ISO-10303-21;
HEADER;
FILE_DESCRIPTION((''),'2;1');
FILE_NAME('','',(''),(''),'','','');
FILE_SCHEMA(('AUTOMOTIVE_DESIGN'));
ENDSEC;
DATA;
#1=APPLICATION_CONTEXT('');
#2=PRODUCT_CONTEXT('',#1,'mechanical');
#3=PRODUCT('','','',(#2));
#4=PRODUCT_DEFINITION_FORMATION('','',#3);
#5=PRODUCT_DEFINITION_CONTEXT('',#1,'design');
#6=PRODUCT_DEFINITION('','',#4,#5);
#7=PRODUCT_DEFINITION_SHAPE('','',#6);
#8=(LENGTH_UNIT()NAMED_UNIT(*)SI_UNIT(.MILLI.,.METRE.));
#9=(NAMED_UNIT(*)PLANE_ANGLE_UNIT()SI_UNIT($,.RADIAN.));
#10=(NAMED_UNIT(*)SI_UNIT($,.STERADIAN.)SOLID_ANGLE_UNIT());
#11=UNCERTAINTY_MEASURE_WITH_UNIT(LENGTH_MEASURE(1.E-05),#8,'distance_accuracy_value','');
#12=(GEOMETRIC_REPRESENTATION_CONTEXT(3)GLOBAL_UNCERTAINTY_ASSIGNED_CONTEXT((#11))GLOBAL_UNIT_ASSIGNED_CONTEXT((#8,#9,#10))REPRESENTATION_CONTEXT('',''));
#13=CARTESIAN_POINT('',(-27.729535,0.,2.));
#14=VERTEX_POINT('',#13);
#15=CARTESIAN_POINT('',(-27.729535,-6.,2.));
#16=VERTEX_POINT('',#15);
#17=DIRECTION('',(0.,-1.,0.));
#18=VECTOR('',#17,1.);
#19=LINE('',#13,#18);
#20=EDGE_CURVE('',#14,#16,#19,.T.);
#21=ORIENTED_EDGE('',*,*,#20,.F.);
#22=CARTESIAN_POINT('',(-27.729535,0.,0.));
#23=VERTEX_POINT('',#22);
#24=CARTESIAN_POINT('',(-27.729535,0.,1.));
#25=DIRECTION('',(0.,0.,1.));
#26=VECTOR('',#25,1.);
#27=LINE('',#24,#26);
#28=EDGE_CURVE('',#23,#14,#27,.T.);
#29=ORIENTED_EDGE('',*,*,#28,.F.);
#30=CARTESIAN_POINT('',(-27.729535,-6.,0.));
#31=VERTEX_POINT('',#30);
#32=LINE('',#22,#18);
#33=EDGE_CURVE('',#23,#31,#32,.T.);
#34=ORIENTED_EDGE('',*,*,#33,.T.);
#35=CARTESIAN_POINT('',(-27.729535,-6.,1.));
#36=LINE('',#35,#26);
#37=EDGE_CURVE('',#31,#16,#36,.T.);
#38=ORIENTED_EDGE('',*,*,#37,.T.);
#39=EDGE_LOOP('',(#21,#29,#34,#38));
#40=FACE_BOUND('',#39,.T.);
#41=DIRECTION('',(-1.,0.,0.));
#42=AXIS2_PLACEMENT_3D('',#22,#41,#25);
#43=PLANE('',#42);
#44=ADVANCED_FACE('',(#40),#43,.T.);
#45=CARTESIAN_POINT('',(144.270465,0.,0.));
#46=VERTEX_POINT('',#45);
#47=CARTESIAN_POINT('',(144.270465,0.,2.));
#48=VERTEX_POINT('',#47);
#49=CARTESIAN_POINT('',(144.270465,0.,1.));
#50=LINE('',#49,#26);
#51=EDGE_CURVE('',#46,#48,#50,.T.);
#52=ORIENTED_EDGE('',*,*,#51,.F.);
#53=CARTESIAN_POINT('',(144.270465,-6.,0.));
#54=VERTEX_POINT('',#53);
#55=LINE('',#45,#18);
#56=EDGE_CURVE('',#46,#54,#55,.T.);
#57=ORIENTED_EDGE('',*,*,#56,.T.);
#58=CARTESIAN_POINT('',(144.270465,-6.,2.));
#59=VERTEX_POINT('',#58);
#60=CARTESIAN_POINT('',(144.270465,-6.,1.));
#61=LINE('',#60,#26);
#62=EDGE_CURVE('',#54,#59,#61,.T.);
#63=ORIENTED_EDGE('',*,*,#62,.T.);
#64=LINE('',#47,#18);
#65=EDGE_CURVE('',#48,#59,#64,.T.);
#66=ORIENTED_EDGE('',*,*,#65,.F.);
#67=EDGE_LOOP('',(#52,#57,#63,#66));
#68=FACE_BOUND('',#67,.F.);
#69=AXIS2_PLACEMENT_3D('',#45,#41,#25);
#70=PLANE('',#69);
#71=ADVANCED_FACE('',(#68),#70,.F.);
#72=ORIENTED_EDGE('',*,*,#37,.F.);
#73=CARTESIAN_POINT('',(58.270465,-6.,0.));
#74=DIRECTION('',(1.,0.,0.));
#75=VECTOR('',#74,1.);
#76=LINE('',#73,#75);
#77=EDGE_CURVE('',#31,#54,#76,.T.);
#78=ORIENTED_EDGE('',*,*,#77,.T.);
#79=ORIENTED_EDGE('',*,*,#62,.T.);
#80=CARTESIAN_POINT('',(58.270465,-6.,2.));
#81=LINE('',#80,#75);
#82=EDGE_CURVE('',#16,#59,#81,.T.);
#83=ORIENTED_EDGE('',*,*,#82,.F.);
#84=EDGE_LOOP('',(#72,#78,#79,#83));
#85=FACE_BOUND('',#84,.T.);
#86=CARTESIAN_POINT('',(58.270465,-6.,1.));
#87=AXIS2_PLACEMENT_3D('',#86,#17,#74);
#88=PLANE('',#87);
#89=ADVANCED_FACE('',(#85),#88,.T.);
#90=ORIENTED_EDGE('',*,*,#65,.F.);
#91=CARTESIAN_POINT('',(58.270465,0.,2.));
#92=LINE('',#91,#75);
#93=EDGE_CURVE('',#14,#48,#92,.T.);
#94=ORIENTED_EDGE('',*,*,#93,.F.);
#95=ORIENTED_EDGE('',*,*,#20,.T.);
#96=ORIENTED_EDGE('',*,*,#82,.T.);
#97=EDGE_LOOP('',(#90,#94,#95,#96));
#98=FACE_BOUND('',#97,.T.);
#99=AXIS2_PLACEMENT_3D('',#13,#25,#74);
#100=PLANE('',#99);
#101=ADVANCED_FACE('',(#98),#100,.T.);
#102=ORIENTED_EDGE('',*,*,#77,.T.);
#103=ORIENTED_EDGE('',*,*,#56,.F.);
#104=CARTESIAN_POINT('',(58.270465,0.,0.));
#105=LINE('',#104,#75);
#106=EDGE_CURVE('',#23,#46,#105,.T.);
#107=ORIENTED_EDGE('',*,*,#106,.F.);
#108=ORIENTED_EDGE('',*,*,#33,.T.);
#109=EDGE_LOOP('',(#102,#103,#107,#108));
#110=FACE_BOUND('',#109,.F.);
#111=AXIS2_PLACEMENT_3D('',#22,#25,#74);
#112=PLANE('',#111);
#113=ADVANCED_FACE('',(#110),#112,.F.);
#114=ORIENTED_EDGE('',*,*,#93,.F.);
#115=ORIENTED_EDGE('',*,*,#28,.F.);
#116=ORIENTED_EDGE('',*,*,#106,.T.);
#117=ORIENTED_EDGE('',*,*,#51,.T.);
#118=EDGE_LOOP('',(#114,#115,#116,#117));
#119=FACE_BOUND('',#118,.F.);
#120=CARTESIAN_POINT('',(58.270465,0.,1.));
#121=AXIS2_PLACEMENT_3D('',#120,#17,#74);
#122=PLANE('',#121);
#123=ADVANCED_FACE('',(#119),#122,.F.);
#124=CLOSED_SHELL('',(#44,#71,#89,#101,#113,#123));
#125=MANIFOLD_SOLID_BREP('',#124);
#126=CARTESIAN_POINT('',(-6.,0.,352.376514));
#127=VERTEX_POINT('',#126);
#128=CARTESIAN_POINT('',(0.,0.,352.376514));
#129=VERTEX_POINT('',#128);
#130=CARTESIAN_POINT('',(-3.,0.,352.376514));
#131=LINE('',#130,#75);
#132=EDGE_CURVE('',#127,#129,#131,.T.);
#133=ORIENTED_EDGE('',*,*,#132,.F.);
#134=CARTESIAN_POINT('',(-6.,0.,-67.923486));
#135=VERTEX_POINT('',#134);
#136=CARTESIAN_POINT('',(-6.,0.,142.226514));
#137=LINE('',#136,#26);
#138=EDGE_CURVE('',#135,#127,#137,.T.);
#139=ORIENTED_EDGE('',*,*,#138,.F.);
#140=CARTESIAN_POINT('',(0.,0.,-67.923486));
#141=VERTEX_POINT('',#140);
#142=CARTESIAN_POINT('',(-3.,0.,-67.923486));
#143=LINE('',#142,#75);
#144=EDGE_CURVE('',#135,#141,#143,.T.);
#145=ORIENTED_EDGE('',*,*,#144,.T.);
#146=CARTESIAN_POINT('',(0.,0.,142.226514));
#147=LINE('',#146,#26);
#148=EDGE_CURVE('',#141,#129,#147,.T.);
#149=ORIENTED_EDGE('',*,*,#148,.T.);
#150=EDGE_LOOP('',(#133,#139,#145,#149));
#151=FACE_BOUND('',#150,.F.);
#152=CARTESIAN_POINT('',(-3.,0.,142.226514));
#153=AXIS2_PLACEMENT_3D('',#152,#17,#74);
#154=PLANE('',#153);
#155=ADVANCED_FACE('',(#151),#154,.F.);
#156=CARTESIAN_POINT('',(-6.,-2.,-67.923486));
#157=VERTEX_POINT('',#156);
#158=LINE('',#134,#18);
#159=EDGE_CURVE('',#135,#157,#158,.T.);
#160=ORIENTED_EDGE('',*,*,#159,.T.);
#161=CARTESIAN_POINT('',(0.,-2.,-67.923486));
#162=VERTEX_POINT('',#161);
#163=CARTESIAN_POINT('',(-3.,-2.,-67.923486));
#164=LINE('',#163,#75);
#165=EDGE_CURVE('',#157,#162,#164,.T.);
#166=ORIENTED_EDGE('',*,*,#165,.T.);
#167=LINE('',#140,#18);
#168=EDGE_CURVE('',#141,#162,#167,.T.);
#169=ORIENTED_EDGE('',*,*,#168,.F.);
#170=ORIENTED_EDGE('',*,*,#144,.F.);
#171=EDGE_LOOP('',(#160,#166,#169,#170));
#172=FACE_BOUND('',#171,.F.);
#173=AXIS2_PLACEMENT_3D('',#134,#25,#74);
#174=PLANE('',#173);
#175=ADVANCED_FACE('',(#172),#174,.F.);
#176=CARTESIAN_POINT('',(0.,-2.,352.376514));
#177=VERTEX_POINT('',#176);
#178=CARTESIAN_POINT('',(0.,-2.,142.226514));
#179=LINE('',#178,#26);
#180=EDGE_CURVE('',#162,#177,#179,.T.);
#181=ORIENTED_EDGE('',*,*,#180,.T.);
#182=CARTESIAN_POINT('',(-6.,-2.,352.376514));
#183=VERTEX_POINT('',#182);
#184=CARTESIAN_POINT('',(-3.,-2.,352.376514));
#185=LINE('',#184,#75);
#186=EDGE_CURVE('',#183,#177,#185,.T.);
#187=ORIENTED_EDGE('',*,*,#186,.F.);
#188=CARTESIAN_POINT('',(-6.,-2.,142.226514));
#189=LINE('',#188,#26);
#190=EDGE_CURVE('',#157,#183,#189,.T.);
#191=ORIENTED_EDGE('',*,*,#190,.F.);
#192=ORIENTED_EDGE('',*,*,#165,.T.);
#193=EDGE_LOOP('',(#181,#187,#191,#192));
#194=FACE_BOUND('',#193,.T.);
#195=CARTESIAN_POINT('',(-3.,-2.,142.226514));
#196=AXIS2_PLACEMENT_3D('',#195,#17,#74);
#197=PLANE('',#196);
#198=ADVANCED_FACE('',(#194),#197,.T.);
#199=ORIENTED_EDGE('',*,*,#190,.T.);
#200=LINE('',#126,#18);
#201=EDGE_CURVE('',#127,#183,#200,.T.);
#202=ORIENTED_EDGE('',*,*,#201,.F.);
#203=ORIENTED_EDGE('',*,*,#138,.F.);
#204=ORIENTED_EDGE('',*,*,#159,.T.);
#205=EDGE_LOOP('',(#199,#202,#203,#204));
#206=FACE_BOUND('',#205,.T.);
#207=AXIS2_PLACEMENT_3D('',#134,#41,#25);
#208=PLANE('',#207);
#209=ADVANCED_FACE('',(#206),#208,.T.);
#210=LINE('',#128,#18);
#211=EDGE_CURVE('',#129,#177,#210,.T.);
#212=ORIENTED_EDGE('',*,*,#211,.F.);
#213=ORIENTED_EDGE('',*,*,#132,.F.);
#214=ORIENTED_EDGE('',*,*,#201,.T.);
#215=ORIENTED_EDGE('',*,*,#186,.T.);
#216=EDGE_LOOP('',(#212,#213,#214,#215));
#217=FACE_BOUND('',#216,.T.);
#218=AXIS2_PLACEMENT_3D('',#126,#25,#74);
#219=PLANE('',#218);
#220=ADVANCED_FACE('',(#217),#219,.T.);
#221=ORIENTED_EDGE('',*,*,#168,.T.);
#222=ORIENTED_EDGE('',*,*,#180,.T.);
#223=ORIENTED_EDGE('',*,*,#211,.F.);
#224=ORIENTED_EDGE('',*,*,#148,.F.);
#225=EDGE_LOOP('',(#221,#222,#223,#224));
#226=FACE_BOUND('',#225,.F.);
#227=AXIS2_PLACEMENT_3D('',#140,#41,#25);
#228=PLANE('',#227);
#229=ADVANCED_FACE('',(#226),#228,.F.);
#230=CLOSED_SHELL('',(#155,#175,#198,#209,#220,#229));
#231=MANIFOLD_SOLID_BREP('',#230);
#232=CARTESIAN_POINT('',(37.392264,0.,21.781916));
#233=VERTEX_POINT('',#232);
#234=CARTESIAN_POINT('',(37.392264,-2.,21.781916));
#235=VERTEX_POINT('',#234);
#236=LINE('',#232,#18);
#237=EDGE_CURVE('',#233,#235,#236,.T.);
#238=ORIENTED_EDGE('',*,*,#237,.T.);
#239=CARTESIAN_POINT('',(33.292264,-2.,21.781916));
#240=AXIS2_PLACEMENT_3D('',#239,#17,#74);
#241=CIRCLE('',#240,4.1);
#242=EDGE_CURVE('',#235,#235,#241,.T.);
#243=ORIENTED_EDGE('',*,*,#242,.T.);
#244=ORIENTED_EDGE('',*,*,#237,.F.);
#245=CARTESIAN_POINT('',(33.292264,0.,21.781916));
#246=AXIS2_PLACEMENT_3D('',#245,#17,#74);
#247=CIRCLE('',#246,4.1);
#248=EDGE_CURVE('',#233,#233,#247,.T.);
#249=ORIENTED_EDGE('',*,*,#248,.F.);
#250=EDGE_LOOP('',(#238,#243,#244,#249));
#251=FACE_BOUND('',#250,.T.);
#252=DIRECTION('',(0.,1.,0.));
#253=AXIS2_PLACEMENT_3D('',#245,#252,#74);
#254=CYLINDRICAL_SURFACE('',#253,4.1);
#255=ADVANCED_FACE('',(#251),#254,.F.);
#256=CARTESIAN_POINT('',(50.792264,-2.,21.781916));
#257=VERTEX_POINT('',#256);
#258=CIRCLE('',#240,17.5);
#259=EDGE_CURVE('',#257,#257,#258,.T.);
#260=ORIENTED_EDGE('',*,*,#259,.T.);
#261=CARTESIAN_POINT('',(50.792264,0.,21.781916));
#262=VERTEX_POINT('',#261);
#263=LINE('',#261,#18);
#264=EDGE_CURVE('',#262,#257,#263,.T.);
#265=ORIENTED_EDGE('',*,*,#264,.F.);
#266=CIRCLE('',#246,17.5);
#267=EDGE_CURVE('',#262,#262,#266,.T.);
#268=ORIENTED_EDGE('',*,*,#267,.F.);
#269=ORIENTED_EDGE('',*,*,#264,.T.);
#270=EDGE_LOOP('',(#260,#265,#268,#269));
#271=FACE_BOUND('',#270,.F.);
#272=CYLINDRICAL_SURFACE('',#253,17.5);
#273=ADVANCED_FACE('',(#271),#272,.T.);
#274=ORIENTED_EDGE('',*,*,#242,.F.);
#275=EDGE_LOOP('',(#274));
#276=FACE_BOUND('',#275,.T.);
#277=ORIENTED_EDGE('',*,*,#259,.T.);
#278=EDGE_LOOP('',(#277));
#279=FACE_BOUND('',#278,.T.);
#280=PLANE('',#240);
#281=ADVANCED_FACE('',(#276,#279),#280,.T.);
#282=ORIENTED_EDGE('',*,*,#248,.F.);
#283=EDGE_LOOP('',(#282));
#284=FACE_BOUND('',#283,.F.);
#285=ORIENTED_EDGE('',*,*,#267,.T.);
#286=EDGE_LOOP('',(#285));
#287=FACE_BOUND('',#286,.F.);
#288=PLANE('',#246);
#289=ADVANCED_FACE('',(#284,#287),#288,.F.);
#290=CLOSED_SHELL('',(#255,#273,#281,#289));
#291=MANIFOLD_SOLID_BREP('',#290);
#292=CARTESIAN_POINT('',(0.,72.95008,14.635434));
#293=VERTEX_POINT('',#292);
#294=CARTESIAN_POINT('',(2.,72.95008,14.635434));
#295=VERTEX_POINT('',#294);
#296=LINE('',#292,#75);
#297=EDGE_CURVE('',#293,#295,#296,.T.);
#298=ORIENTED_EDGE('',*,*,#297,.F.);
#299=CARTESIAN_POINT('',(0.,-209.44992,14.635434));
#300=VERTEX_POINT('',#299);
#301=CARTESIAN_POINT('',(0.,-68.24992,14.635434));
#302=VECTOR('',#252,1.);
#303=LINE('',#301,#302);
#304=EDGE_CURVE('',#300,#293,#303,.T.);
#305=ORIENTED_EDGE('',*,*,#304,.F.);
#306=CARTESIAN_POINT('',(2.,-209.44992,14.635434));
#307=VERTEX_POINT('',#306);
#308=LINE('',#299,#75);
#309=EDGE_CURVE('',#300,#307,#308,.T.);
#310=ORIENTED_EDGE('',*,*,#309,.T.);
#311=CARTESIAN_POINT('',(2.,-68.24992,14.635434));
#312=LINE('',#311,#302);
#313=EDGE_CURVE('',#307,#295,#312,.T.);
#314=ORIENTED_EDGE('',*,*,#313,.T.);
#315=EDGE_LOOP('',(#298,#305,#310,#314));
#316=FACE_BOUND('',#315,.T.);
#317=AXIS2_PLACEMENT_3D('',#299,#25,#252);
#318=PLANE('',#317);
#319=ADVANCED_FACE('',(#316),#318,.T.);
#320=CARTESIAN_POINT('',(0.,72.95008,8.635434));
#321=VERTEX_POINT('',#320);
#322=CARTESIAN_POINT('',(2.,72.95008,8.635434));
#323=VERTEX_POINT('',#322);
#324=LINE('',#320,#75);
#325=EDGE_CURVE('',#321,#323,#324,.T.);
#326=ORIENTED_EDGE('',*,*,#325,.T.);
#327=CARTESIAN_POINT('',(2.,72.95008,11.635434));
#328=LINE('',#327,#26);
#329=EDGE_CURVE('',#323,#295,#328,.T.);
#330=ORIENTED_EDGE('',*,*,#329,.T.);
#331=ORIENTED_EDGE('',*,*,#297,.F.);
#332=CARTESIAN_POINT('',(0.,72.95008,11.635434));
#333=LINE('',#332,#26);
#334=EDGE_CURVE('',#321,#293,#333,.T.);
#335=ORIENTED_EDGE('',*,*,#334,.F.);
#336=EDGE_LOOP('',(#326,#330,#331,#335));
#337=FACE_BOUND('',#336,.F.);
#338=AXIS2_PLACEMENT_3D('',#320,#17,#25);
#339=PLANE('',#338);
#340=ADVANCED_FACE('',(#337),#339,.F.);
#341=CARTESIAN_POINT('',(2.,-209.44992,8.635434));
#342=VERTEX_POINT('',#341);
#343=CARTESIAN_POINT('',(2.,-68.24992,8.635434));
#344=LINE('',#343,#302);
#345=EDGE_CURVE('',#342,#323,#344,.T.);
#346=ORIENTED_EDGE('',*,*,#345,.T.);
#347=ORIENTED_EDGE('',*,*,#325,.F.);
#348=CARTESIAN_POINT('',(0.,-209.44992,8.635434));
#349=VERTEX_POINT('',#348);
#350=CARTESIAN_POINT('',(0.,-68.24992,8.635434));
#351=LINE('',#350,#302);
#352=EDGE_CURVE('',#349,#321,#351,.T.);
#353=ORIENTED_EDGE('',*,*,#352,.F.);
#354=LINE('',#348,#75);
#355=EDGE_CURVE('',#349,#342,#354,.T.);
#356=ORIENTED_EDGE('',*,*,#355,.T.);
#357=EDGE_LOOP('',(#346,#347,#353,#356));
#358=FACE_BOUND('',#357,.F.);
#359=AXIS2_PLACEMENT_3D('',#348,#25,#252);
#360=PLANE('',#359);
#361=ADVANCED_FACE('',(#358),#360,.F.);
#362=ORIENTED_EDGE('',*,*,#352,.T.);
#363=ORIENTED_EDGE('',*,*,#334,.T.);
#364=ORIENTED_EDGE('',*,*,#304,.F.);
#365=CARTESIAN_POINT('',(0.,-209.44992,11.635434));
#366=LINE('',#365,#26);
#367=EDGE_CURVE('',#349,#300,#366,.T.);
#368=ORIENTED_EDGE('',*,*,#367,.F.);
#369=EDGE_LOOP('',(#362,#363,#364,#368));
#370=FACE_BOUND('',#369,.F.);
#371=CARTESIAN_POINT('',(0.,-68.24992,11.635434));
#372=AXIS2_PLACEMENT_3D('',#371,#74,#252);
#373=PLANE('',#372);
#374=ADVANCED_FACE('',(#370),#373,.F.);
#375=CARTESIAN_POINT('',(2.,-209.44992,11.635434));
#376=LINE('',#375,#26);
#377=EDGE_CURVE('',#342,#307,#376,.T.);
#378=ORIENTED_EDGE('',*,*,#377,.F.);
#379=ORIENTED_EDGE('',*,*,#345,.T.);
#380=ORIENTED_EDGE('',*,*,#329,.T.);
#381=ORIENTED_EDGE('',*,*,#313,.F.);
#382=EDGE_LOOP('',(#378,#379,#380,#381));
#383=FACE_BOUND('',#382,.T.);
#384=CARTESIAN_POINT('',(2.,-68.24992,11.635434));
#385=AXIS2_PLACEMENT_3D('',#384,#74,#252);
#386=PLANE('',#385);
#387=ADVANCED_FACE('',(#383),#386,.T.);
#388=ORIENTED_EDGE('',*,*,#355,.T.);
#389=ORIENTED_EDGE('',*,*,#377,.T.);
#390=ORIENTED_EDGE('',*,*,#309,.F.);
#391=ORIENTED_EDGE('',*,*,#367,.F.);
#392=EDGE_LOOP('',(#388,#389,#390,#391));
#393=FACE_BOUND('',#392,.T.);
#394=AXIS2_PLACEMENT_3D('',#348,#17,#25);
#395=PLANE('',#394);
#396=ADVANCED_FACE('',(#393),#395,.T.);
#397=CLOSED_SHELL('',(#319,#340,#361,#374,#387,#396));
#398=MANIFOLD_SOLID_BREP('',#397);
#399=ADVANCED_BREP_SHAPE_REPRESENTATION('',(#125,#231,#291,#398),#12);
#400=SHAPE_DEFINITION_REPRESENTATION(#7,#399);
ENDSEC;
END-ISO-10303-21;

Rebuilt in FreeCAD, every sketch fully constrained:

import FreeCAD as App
import Part
import Sketcher

V = App.Vector

doc = App.newDocument("Part")
body = doc.addObject("PartDesign::Body", "Body")

sketch1 = body.newObject("Sketcher::SketchObject", "Sketch")
sketch1.AttachmentSupport = (doc.getObject("XZ_Plane"), [""])
sketch1.MapMode = "FlatFace"
sketch1.addGeometry([
    Part.LineSegment(V(-27.7, 2, 0), V(-27.7, 0, 0)),
    Part.LineSegment(V(-27.7, 0, 0), V(144.3, 0, 0)),
    Part.LineSegment(V(144.3, 0, 0), V(144.3, 2, 0)),
    Part.LineSegment(V(144.3, 2, 0), V(-27.7, 2, 0)),
], False)
sketch1.addConstraint([
    Sketcher.Constraint("Coincident", 0, 2, 1, 1),
    Sketcher.Constraint("Coincident", 1, 2, 2, 1),
    Sketcher.Constraint("Coincident", 2, 2, 3, 1),
    Sketcher.Constraint("Coincident", 3, 2, 0, 1),
    Sketcher.Constraint("Vertical", 0),
    Sketcher.Constraint("Horizontal", 1),
    Sketcher.Constraint("Vertical", 2),
    Sketcher.Constraint("Horizontal", 3),
    Sketcher.Constraint("PointOnObject", 0, 2, -1),
    Sketcher.Constraint("DistanceX", 1, 1, 1, 2, 172.0),
    Sketcher.Constraint("DistanceY", 0, 2, 0, 1, 2.0),
    Sketcher.Constraint("DistanceX", 0, 2, -1, 1, 27.729535),
])
pad1 = body.newObject("PartDesign::Pad", "Pad")
pad1.Profile = sketch1
pad1.Length = 6
body2 = doc.addObject("PartDesign::Body", "Body001")

sketch2 = body2.newObject("Sketcher::SketchObject", "Sketch001")
sketch2.AttachmentSupport = (doc.getObject("YZ_Plane001"), [""])
sketch2.MapMode = "FlatFace"
sketch2.addGeometry([
    Part.LineSegment(V(-209, 15, 0), V(-209, 9, 0)),
    Part.LineSegment(V(-209, 9, 0), V(73, 9, 0)),
    Part.LineSegment(V(73, 9, 0), V(73, 15, 0)),
    Part.LineSegment(V(73, 15, 0), V(-209, 15, 0)),
], False)
sketch2.addConstraint([
    Sketcher.Constraint("Coincident", 0, 2, 1, 1),
    Sketcher.Constraint("Coincident", 1, 2, 2, 1),
    Sketcher.Constraint("Coincident", 2, 2, 3, 1),
    Sketcher.Constraint("Coincident", 3, 2, 0, 1),
    Sketcher.Constraint("Vertical", 0),
    Sketcher.Constraint("Horizontal", 1),
    Sketcher.Constraint("Vertical", 2),
    Sketcher.Constraint("Horizontal", 3),
    Sketcher.Constraint("DistanceY", 0, 2, 0, 1, 6.0),
    Sketcher.Constraint("DistanceX", 1, 1, 1, 2, 282.4),
    Sketcher.Constraint("DistanceX", 0, 2, -1, 1, 209.44992),
    Sketcher.Constraint("DistanceY", -1, 1, 0, 2, 8.635434),
])
pad2 = body2.newObject("PartDesign::Pad", "Pad001")
pad2.Profile = sketch2
pad2.Length = 2
body3 = doc.addObject("PartDesign::Body", "Body002")

sketch3 = body3.newObject("Sketcher::SketchObject", "Sketch002")
sketch3.AttachmentSupport = (doc.getObject("XZ_Plane002"), [""])
sketch3.MapMode = "FlatFace"
sketch3.addGeometry([
    Part.LineSegment(V(-6, 352, 0), V(-6, -68, 0)),
    Part.LineSegment(V(-6, -68, 0), V(0, -68, 0)),
    Part.LineSegment(V(0, -68, 0), V(0, 352, 0)),
    Part.LineSegment(V(0, 352, 0), V(-6, 352, 0)),
], False)
sketch3.addConstraint([
    Sketcher.Constraint("Coincident", 0, 2, 1, 1),
    Sketcher.Constraint("Coincident", 1, 2, 2, 1),
    Sketcher.Constraint("Coincident", 2, 2, 3, 1),
    Sketcher.Constraint("Coincident", 3, 2, 0, 1),
    Sketcher.Constraint("Vertical", 0),
    Sketcher.Constraint("Horizontal", 1),
    Sketcher.Constraint("Vertical", 2),
    Sketcher.Constraint("Horizontal", 3),
    Sketcher.Constraint("PointOnObject", 1, 2, -2),
    Sketcher.Constraint("DistanceX", 1, 1, 1, 2, 6.0),
    Sketcher.Constraint("DistanceY", 0, 2, 0, 1, 420.3),
    Sketcher.Constraint("DistanceY", 0, 2, -1, 1, 67.923486),
])
pad3 = body3.newObject("PartDesign::Pad", "Pad002")
pad3.Profile = sketch3
pad3.Length = 2
body4 = doc.addObject("PartDesign::Body", "Body003")

sketch4 = body4.newObject("Sketcher::SketchObject", "Sketch003")
sketch4.AttachmentSupport = (doc.getObject("XZ_Plane003"), [""])
sketch4.MapMode = "FlatFace"
sketch4.addGeometry([
    Part.Circle(V(33.3, 21.8, 0), V(0, 0, 1), 17.5),
    Part.Circle(V(33.3, 21.8, 0), V(0, 0, 1), 4.1),
], False)
sketch4.addConstraint([
    Sketcher.Constraint("Coincident", 1, 3, 0, 3),
    Sketcher.Constraint("Diameter", 0, 35.0),
    Sketcher.Constraint("Diameter", 1, 8.2),
    Sketcher.Constraint("DistanceX", -1, 1, 0, 3, 33.292264),
    Sketcher.Constraint("DistanceY", -1, 1, 0, 3, 21.781916),
])
pad4 = body4.newObject("PartDesign::Pad", "Pad003")
pad4.Profile = sketch4
pad4.Length = 2

doc.recompute()
